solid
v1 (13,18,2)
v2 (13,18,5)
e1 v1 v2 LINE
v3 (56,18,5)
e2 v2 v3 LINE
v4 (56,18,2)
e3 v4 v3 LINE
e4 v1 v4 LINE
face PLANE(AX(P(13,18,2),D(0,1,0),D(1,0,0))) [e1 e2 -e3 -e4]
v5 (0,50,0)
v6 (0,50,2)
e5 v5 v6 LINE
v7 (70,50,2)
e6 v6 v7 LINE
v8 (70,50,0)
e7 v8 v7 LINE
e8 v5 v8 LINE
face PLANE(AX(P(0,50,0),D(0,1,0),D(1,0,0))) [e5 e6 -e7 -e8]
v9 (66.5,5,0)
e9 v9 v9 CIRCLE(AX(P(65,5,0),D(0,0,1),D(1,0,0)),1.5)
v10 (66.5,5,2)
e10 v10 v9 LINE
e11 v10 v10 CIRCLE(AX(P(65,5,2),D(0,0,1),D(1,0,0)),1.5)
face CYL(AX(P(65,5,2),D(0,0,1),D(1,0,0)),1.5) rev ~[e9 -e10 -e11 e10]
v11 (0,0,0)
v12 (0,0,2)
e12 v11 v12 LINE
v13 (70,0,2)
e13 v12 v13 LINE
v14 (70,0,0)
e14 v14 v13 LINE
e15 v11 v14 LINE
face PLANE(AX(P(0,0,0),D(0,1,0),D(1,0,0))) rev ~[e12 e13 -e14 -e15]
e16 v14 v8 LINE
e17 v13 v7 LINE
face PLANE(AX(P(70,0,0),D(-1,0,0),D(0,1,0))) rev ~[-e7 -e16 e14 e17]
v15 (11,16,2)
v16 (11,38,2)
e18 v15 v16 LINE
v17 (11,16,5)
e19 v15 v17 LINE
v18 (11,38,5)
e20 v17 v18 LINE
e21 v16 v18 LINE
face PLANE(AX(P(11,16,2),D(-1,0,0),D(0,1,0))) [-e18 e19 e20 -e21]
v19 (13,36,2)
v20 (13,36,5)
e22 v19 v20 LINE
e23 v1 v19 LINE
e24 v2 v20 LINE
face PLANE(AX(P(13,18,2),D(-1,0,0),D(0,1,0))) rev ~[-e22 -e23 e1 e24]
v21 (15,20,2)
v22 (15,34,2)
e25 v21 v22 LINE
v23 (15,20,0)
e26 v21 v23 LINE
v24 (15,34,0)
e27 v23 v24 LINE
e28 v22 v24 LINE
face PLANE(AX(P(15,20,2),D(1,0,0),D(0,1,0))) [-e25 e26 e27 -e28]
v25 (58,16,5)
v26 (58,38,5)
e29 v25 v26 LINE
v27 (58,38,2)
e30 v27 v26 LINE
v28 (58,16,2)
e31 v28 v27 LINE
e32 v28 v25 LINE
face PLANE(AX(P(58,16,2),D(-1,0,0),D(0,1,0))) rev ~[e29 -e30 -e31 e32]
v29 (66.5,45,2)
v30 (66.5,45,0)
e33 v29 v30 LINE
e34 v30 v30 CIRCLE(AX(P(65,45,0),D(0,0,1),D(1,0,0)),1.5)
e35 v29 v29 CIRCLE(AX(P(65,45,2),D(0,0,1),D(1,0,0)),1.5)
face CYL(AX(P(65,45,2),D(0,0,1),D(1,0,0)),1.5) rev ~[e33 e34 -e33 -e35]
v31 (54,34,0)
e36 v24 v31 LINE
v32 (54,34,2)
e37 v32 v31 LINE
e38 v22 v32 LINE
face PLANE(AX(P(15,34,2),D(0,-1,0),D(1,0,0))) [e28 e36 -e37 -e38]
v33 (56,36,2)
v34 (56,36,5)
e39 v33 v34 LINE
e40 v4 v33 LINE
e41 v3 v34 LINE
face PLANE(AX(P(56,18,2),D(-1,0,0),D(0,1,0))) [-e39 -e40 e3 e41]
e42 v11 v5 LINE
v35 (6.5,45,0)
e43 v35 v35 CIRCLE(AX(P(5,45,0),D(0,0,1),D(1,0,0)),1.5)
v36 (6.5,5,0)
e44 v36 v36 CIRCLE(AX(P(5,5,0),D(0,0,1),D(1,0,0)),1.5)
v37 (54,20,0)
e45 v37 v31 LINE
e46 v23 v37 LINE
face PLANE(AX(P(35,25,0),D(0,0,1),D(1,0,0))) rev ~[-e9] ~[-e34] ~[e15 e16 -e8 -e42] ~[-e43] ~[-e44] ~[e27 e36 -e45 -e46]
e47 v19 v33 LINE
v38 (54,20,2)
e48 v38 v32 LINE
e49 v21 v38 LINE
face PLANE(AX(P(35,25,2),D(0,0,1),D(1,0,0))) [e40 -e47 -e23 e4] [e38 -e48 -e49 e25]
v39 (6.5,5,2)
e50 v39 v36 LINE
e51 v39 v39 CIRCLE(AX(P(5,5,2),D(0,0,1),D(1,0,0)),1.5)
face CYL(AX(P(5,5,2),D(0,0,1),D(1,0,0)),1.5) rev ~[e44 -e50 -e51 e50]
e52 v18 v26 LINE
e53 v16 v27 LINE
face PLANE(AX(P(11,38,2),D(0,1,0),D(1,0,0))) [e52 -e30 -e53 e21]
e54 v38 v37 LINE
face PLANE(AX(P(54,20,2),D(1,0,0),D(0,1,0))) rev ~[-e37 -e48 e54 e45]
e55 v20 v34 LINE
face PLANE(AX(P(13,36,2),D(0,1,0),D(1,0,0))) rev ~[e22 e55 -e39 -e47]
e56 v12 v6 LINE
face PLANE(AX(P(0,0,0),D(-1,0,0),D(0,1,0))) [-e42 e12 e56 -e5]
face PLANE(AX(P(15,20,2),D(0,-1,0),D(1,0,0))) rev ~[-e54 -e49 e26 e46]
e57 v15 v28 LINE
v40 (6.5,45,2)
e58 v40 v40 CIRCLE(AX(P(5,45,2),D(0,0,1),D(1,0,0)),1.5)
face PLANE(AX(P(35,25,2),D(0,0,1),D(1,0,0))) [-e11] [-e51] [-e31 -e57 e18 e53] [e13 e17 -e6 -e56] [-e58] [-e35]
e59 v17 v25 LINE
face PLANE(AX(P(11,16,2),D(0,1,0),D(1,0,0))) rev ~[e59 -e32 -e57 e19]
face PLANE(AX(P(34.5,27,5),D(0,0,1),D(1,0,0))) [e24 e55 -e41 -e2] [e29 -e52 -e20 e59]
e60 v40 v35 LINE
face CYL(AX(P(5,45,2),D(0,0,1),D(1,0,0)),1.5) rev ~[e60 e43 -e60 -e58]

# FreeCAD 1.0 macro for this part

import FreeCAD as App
import Part
import Sketcher
from FreeCAD import Vector
Q = App.Units.Quantity

doc = App.newDocument("Part")
body = doc.addObject("PartDesign::Body", "Body")

sketch1 = body.newObject("Sketcher::SketchObject", "Sketch")
sketch1.AttachmentSupport = (doc.getObject("XY_Plane"), [""])
sketch1.MapMode = "FlatFace"
sketch1.addGeometry([
    Part.LineSegment(Vector(0, 50, 0), Vector(0, 0, 0)),
    Part.LineSegment(Vector(0, 0, 0), Vector(70, 0, 0)),
    Part.LineSegment(Vector(70, 0, 0), Vector(70, 50, 0)),
    Part.LineSegment(Vector(70, 50, 0), Vector(0, 50, 0)),
], False)
sketch1.addConstraint([
    Sketcher.Constraint("Coincident", 0, 2, 1, 1),
    Sketcher.Constraint("Coincident", 1, 2, 2, 1),
    Sketcher.Constraint("Coincident", 2, 2, 3, 1),
    Sketcher.Constraint("Coincident", 3, 2, 0, 1),
    Sketcher.Constraint("Vertical", 0),
    Sketcher.Constraint("Horizontal", 1),
    Sketcher.Constraint("Vertical", 2),
    Sketcher.Constraint("Horizontal", 3),
    Sketcher.Constraint("Coincident", 0, 2, -1, 1),
    Sketcher.Constraint("DistanceX", 1, 1, 1, 2, Q("70 mm")),
    Sketcher.Constraint("DistanceY", 0, 2, 0, 1, Q("50 mm")),
])
pad1 = body.newObject("PartDesign::Pad", "Pad")
pad1.Profile = sketch1
pad1.Length = 2

sketch2 = body.newObject("Sketcher::SketchObject", "Sketch001")
sketch2.AttachmentSupport = (doc.getObject("XY_Plane"), [""])
sketch2.MapMode = "FlatFace"
sketch2.AttachmentOffset = App.Placement(Vector(0, 0, 2), App.Rotation())
sketch2.addGeometry([
    Part.Circle(Vector(5, 45, 0), Vector(0, 0, 1), 1.5),
    Part.Circle(Vector(65, 45, 0), Vector(0, 0, 1), 1.5),
    Part.Circle(Vector(5, 5, 0), Vector(0, 0, 1), 1.5),
    Part.Circle(Vector(65, 5, 0), Vector(0, 0, 1), 1.5),
], False)
sketch2.addConstraint([
    Sketcher.Constraint("Equal", 0, 1),
    Sketcher.Constraint("Equal", 1, 2),
    Sketcher.Constraint("Equal", 2, 3),
    Sketcher.Constraint("Horizontal", 0, 3, 1, 3),
    Sketcher.Constraint("Horizontal", 2, 3, 3, 3),
    Sketcher.Constraint("Vertical", 0, 3, 2, 3),
    Sketcher.Constraint("Vertical", 1, 3, 3, 3),
    Sketcher.Constraint("Diameter", 0, Q("3 mm")),
    Sketcher.Constraint("DistanceX", -1, 1, 0, 3, Q("5 mm")),
    Sketcher.Constraint("DistanceY", -1, 1, 0, 3, Q("45 mm")),
    Sketcher.Constraint("DistanceX", -1, 1, 1, 3, Q("65 mm")),
    Sketcher.Constraint("DistanceY", -1, 1, 2, 3, Q("5 mm")),
])
pocket1 = body.newObject("PartDesign::Pocket", "Pocket")
pocket1.Profile = sketch2
pocket1.Length = 2

sketch3 = body.newObject("Sketcher::SketchObject", "Sketch002")
sketch3.AttachmentSupport = (doc.getObject("XY_Plane"), [""])
sketch3.MapMode = "FlatFace"
sketch3.AttachmentOffset = App.Placement(Vector(0, 0, 2), App.Rotation())
sketch3.addGeometry([
    Part.LineSegment(Vector(15, 34, 0), Vector(15, 20, 0)),
    Part.LineSegment(Vector(15, 20, 0), Vector(54, 20, 0)),
    Part.LineSegment(Vector(54, 20, 0), Vector(54, 34, 0)),
    Part.LineSegment(Vector(54, 34, 0), Vector(15, 34, 0)),
], False)
sketch3.addConstraint([
    Sketcher.Constraint("Coincident", 0, 2, 1, 1),
    Sketcher.Constraint("Coincident", 1, 2, 2, 1),
    Sketcher.Constraint("Coincident", 2, 2, 3, 1),
    Sketcher.Constraint("Coincident", 3, 2, 0, 1),
    Sketcher.Constraint("Vertical", 0),
    Sketcher.Constraint("Horizontal", 1),
    Sketcher.Constraint("Vertical", 2),
    Sketcher.Constraint("Horizontal", 3),
    Sketcher.Constraint("DistanceX", 1, 1, 1, 2, Q("39 mm")),
    Sketcher.Constraint("DistanceY", 0, 2, 0, 1, Q("14 mm")),
    Sketcher.Constraint("DistanceX", -1, 1, 0, 2, Q("15 mm")),
    Sketcher.Constraint("DistanceY", -1, 1, 0, 2, Q("20 mm")),
])
pocket2 = body.newObject("PartDesign::Pocket", "Pocket001")
pocket2.Profile = sketch3
pocket2.Length = 2

sketch4 = body.newObject("Sketcher::SketchObject", "Sketch003")
sketch4.AttachmentSupport = (doc.getObject("XY_Plane"), [""])
sketch4.MapMode = "FlatFace"
sketch4.AttachmentOffset = App.Placement(Vector(0, 0, 2), App.Rotation())
sketch4.addGeometry([
    Part.LineSegment(Vector(11, 38, 0), Vector(11, 16, 0)),
    Part.LineSegment(Vector(11, 16, 0), Vector(58, 16, 0)),
    Part.LineSegment(Vector(58, 16, 0), Vector(58, 38, 0)),
    Part.LineSegment(Vector(58, 38, 0), Vector(11, 38, 0)),
    Part.LineSegment(Vector(56, 18, 0), Vector(13, 18, 0)),
    Part.LineSegment(Vector(13, 18, 0), Vector(13, 36, 0)),
    Part.LineSegment(Vector(13, 36, 0), Vector(56, 36, 0)),
    Part.LineSegment(Vector(56, 36, 0), Vector(56, 18, 0)),
], False)
sketch4.addConstraint([
    Sketcher.Constraint("Coincident", 0, 2, 1, 1),
    Sketcher.Constraint("Coincident", 1, 2, 2, 1),
    Sketcher.Constraint("Coincident", 2, 2, 3, 1),
    Sketcher.Constraint("Coincident", 3, 2, 0, 1),
    Sketcher.Constraint("Coincident", 4, 2, 5, 1),
    Sketcher.Constraint("Coincident", 5, 2, 6, 1),
    Sketcher.Constraint("Coincident", 6, 2, 7, 1),
    Sketcher.Constraint("Coincident", 7, 2, 4, 1),
    Sketcher.Constraint("Vertical", 0),
    Sketcher.Constraint("Horizontal", 1),
    Sketcher.Constraint("Vertical", 2),
    Sketcher.Constraint("Horizontal", 3),
    Sketcher.Constraint("Horizontal", 4),
    Sketcher.Constraint("Vertical", 5),
    Sketcher.Constraint("Horizontal", 6),
    Sketcher.Constraint("Vertical", 7),
    Sketcher.Constraint("DistanceX", 1, 1, 1, 2, Q("47 mm")),
    Sketcher.Constraint("DistanceX", 4, 2, 4, 1, Q("43 mm")),
    Sketcher.Constraint("DistanceY", 0, 2, 0, 1, Q("22 mm")),
    Sketcher.Constraint("DistanceY", 5, 1, 5, 2, Q("18 mm")),
    Sketcher.Constraint("DistanceX", -1, 1, 0, 2, Q("11 mm")),
    Sketcher.Constraint("DistanceY", -1, 1, 0, 2, Q("16 mm")),
    Sketcher.Constraint("DistanceX", -1, 1, 4, 2, Q("13 mm")),
    Sketcher.Constraint("DistanceY", -1, 1, 4, 2, Q("18 mm")),
])
pad2 = body.newObject("PartDesign::Pad", "Pad001")
pad2.Profile = sketch4
pad2.Length = 3

doc.recompute()
